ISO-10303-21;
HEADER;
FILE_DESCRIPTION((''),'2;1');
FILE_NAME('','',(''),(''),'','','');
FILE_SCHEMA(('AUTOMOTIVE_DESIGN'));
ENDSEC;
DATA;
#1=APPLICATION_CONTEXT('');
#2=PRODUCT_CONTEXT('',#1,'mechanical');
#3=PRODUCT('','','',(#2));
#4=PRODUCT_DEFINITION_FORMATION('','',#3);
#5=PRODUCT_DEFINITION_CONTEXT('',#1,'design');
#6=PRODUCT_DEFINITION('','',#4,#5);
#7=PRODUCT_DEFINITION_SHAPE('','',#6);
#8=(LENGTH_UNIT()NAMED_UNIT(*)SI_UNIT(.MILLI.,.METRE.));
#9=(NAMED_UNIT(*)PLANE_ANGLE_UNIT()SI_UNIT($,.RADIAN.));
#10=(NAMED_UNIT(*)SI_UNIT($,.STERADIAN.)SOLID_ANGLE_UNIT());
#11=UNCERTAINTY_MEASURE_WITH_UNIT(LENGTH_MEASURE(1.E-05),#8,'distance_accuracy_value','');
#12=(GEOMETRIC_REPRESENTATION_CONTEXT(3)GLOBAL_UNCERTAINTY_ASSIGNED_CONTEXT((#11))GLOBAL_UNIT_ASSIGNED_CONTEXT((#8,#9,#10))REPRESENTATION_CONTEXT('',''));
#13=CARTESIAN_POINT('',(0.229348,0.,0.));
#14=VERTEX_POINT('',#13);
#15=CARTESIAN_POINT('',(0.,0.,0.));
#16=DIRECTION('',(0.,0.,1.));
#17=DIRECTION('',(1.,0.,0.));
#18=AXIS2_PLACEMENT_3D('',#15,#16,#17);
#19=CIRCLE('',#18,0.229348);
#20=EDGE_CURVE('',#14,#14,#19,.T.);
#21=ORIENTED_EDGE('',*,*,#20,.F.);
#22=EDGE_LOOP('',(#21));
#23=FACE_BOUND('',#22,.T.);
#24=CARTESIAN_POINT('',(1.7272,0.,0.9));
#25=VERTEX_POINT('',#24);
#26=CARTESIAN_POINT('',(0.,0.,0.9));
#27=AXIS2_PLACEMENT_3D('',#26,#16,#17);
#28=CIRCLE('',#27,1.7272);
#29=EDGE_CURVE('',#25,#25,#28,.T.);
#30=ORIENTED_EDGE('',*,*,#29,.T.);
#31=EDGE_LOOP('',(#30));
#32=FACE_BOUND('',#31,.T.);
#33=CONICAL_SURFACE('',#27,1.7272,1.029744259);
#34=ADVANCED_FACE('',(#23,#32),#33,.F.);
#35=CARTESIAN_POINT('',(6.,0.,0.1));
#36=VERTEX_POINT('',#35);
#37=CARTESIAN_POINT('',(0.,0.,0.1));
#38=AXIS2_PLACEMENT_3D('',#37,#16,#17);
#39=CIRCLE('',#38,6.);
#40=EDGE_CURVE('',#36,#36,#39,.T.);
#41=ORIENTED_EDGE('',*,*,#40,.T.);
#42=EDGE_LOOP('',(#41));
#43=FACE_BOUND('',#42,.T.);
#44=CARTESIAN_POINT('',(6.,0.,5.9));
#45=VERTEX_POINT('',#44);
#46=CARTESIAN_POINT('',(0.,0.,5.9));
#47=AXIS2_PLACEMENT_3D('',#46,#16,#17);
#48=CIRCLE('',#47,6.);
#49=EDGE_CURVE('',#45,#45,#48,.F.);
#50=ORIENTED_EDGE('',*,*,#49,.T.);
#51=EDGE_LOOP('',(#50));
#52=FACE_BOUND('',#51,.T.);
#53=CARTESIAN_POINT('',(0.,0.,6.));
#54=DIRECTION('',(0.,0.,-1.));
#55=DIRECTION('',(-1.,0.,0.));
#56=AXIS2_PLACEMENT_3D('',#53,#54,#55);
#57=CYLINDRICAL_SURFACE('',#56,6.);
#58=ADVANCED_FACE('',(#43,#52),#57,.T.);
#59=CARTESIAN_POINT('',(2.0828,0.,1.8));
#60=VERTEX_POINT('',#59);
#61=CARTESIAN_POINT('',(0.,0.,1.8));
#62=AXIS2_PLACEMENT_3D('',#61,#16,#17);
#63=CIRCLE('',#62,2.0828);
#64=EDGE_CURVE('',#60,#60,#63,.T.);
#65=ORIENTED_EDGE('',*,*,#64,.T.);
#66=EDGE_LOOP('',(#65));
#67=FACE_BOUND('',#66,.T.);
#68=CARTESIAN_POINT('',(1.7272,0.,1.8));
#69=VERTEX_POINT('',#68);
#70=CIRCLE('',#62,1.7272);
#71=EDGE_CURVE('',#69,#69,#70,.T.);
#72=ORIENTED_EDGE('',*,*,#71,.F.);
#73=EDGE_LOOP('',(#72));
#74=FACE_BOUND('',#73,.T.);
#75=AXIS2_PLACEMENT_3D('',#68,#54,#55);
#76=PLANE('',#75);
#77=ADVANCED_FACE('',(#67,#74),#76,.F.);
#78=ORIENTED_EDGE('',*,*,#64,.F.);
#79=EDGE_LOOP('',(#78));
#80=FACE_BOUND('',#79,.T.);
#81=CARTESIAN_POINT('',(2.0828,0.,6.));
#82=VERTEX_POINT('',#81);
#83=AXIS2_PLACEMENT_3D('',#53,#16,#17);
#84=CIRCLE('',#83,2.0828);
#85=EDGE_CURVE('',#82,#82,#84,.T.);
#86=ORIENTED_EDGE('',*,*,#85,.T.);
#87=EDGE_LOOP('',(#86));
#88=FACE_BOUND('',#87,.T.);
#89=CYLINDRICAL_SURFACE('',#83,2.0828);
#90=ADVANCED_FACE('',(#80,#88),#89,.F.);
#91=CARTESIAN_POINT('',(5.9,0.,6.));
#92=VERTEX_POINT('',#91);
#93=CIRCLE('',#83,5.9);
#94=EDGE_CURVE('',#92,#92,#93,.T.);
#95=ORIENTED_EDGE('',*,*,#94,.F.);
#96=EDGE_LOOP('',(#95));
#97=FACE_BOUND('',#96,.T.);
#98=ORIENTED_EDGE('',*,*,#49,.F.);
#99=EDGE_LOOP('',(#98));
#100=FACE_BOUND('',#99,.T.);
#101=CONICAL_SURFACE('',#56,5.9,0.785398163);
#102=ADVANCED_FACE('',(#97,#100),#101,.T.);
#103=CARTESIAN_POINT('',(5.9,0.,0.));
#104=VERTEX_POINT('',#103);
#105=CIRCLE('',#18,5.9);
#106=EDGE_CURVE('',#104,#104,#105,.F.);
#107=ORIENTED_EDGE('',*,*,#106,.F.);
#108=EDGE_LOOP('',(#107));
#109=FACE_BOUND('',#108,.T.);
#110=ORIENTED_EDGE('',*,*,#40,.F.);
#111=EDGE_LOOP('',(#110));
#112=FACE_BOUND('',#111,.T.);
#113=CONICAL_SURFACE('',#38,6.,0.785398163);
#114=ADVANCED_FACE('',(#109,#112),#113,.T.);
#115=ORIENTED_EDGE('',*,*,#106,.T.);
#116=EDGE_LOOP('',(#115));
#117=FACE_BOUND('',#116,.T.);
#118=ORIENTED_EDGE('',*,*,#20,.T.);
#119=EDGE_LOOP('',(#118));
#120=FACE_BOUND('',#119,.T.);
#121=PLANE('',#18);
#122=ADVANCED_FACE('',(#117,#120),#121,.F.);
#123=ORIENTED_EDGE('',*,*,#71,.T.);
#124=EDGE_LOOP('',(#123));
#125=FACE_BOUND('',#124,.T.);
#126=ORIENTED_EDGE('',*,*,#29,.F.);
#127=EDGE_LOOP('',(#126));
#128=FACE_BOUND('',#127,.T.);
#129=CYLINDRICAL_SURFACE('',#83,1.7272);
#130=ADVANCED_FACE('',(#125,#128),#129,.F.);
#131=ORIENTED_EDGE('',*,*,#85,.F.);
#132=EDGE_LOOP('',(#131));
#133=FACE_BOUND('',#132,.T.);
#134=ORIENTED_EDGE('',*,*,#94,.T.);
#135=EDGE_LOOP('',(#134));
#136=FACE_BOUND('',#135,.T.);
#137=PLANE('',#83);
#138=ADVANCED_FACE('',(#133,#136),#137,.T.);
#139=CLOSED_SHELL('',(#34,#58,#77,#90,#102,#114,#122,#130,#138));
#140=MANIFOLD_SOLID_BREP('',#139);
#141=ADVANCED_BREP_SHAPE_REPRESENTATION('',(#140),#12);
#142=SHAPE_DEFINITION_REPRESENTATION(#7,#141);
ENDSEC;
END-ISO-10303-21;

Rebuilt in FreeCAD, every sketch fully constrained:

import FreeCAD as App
import Part
import Sketcher
Q = App.Units.Quantity


def edges_at(feature, points):
    """Names of the edges that pass closest to the given points."""
    edges = feature.Shape.Edges
    near = lambda p: min(range(len(edges)), key=lambda i: edges[i].distToShape(Part.Vertex(*p))[0])
    return sorted({f"Edge{near(p) + 1}" for p in points})

doc = App.newDocument("Part")
body = doc.addObject("PartDesign::Body", "Body")

# Sketch on XY plane
sketch1 = body.newObject("Sketcher::SketchObject", "Sketch")
sketch1.AttachmentSupport = (doc.getObject("XY_Plane"), [""])
sketch1.MapMode = "FlatFace"
sketch1.addGeometry(Part.Circle(App.Vector(0, 0, 0), App.Vector(0, 0, 1), 6), False)
sketch1.addConstraint(Sketcher.Constraint("Coincident", 0, 3, -1, 1))
sketch1.addConstraint(Sketcher.Constraint("Diameter", 0, Q("12 mm")))
pad1 = body.newObject("PartDesign::Pad", "Pad")
pad1.Profile = sketch1
pad1.Length = 6

# Sketch on XY plane
sketch2 = body.newObject("Sketcher::SketchObject", "Sketch001")
sketch2.AttachmentSupport = (doc.getObject("XY_Plane"), [""])
sketch2.MapMode = "FlatFace"
sketch2.AttachmentOffset = App.Placement(App.Vector(0, 0, 6), App.Rotation())
sketch2.addGeometry(Part.Circle(App.Vector(0, 0, 0), App.Vector(0, 0, 1), 1.7272), False)
sketch2.addConstraint(Sketcher.Constraint("Coincident", 0, 3, -1, 1))
sketch2.addConstraint(Sketcher.Constraint("Diameter", 0, Q("3.4544 mm")))
doc.recompute()
hole = body.newObject("PartDesign::Hole", "Hole")
hole.Profile = sketch2
hole.ThreadType = "None"
hole.Diameter = 3.4544
hole.DepthType = "Dimension"
hole.Depth = 5.1
hole.DrillPoint = "Angled"
hole.DrillPointAngle = 118
hole.HoleCutType = "Counterbore"
hole.HoleCutDiameter = 4.1656
hole.HoleCutDepth = 4.2
doc.recompute()

chamfer = body.newObject("PartDesign::Chamfer", "Chamfer")
chamfer.Base = (hole, edges_at(hole, [(-6, 0, 0), (-6, 0, 6)]))
chamfer.Size = 0.1

doc.recompute()
